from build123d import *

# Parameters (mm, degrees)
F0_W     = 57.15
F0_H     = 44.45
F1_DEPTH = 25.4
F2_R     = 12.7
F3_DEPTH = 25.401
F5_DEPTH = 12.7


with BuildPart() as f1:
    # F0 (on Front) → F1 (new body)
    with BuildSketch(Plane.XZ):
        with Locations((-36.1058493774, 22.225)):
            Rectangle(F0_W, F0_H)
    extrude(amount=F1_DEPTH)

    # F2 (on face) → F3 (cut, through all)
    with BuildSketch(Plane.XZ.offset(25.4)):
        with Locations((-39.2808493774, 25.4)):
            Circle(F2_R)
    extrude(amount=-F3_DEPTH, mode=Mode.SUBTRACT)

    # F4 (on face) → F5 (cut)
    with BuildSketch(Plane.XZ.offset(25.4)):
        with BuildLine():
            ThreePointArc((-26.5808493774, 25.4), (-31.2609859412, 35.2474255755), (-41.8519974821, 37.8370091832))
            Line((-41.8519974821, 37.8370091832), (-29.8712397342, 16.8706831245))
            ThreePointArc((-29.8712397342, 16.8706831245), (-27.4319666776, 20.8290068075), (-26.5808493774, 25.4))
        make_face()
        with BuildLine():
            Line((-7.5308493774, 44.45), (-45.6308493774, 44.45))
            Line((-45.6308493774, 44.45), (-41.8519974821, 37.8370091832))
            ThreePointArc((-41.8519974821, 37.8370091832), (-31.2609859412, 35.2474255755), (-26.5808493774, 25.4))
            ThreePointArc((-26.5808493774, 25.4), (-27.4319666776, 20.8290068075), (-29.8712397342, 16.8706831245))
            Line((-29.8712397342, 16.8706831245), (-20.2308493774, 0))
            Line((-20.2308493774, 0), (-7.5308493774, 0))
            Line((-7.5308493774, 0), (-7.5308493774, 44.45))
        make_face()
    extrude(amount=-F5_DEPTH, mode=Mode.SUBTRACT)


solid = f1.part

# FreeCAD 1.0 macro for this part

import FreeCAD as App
import Part
import Sketcher
from FreeCAD import Vector
Q = App.Units.Quantity

doc = App.newDocument("Part")
body = doc.addObject("PartDesign::Body", "Body")

# Sketch on XZ plane
sketch1 = doc.addObject("Sketcher::SketchObject", "Sketch")
body.addObject(sketch1)
sketch1.AttachmentSupport = (doc.XZ_Plane, [""])
sketch1.MapMode = "FlatFace"
sketch1.addGeometry(Part.LineSegment(Vector(-65, 44, 0), Vector(-65, 0, 0)), False)
sketch1.addGeometry(Part.LineSegment(Vector(-65, 0, 0), Vector(-8, 0, 0)), False)
sketch1.addGeometry(Part.LineSegment(Vector(-8, 0, 0), Vector(-8, 44, 0)), False)
sketch1.addGeometry(Part.LineSegment(Vector(-8, 44, 0), Vector(-65, 44, 0)), False)
sketch1.addConstraint(Sketcher.Constraint("Coincident", 0, 2, 1, 1))
sketch1.addConstraint(Sketcher.Constraint("Coincident", 1, 2, 2, 1))
sketch1.addConstraint(Sketcher.Constraint("Coincident", 2, 2, 3, 1))
sketch1.addConstraint(Sketcher.Constraint("Coincident", 3, 2, 0, 1))
sketch1.addConstraint(Sketcher.Constraint("Vertical", 0))
sketch1.addConstraint(Sketcher.Constraint("Horizontal", 1))
sketch1.addConstraint(Sketcher.Constraint("Vertical", 2))
sketch1.addConstraint(Sketcher.Constraint("Horizontal", 3))
sketch1.addConstraint(Sketcher.Constraint("PointOnObject", 0, 2, -1))
sketch1.addConstraint(Sketcher.Constraint("DistanceX", 1, 1, 1, 2, Q("2.25 in")))
sketch1.addConstraint(Sketcher.Constraint("DistanceY", 0, 2, 0, 1, Q("1.75 in")))
sketch1.addConstraint(Sketcher.Constraint("DistanceX", 0, 2, -1, 1, 64.680849))
pad1 = doc.addObject("PartDesign::Pad", "Pad")
body.addObject(pad1)
pad1.Profile = sketch1
pad1.Length = Q("1 in")

# Sketch on XZ plane
sketch2 = doc.addObject("Sketcher::SketchObject", "Sketch001")
body.addObject(sketch2)
sketch2.AttachmentSupport = (doc.XZ_Plane, [""])
sketch2.MapMode = "FlatFace"
sketch2.AttachmentOffset = App.Placement(Vector(0, 0, 1 * 25.4), App.Rotation())
sketch2.addGeometry(Part.Circle(Vector(-39, 25, 0), Vector(0, 0, 1), 13), False)
sketch2.addConstraint(Sketcher.Constraint("Diameter", 0, Q("1 in")))
sketch2.addConstraint(Sketcher.Constraint("DistanceY", -1, 1, 0, 3, Q("1 in")))
sketch2.addConstraint(Sketcher.Constraint("DistanceX", 0, 3, -1, 1, 39.280849))
pocket1 = doc.addObject("PartDesign::Pocket", "Pocket")
body.addObject(pocket1)
pocket1.Profile = sketch2
pocket1.Type = "ThroughAll"

# Sketch on XZ plane
sketch3 = doc.addObject("Sketcher::SketchObject", "Sketch002")
body.addObject(sketch3)
sketch3.AttachmentSupport = (doc.XZ_Plane, [""])
sketch3.MapMode = "FlatFace"
sketch3.AttachmentOffset = App.Placement(Vector(0, 0, 1 * 25.4), App.Rotation())
sketch3.addGeometry(Part.LineSegment(Vector(-42, 38, 0), Vector(-30, 17, 0)), False)
sketch3.addGeometry(Part.LineSegment(Vector(-30, 17, 0), Vector(-20, 0, 0)), False)
sketch3.addGeometry(Part.LineSegment(Vector(-20, 0, 0), Vector(-8, 0, 0)), False)
sketch3.addGeometry(Part.LineSegment(Vector(-8, 0, 0), Vector(-8, 44, 0)), False)
sketch3.addGeometry(Part.LineSegment(Vector(-8, 44, 0), Vector(-46, 44, 0)), False)
sketch3.addGeometry(Part.LineSegment(Vector(-46, 44, 0), Vector(-42, 38, 0)), False)
sketch3.addConstraint(Sketcher.Constraint("Coincident", 0, 2, 1, 1))
sketch3.addConstraint(Sketcher.Constraint("Coincident", 1, 2, 2, 1))
sketch3.addConstraint(Sketcher.Constraint("Coincident", 2, 2, 3, 1))
sketch3.addConstraint(Sketcher.Constraint("Coincident", 3, 2, 4, 1))
sketch3.addConstraint(Sketcher.Constraint("Coincident", 4, 2, 5, 1))
sketch3.addConstraint(Sketcher.Constraint("Coincident", 5, 2, 0, 1))
sketch3.addConstraint(Sketcher.Constraint("Horizontal", 2))
sketch3.addConstraint(Sketcher.Constraint("Vertical", 3))
sketch3.addConstraint(Sketcher.Constraint("Horizontal", 4))
sketch3.addConstraint(Sketcher.Constraint("PointOnObject", 1, 2, -1))
sketch3.addConstraint(Sketcher.Constraint("Parallel", 0, 1))
sketch3.addConstraint(Sketcher.Constraint("Parallel", 1, 5))
sketch3.addConstraint(Sketcher.Constraint("DistanceX", 2, 1, 2, 2, Q("0.5 in")))
sketch3.addConstraint(Sketcher.Constraint("DistanceX", 4, 2, 4, 1, Q("1.5 in")))
sketch3.addConstraint(Sketcher.Constraint("DistanceY", 3, 1, 3, 2, Q("1.75 in")))
sketch3.addConstraint(Sketcher.Constraint("DistanceY", -1, 1, 0, 2, Q("0.6642001 in")))
sketch3.addConstraint(Sketcher.Constraint("Distance", 0, 24.147989))
sketch3.addConstraint(Sketcher.Constraint("DistanceX", 0, 2, -1, 1, 29.87124))
pocket2 = doc.addObject("PartDesign::Pocket", "Pocket001")
body.addObject(pocket2)
pocket2.Profile = sketch3
pocket2.Length = Q("0.5 in")

doc.recompute()
